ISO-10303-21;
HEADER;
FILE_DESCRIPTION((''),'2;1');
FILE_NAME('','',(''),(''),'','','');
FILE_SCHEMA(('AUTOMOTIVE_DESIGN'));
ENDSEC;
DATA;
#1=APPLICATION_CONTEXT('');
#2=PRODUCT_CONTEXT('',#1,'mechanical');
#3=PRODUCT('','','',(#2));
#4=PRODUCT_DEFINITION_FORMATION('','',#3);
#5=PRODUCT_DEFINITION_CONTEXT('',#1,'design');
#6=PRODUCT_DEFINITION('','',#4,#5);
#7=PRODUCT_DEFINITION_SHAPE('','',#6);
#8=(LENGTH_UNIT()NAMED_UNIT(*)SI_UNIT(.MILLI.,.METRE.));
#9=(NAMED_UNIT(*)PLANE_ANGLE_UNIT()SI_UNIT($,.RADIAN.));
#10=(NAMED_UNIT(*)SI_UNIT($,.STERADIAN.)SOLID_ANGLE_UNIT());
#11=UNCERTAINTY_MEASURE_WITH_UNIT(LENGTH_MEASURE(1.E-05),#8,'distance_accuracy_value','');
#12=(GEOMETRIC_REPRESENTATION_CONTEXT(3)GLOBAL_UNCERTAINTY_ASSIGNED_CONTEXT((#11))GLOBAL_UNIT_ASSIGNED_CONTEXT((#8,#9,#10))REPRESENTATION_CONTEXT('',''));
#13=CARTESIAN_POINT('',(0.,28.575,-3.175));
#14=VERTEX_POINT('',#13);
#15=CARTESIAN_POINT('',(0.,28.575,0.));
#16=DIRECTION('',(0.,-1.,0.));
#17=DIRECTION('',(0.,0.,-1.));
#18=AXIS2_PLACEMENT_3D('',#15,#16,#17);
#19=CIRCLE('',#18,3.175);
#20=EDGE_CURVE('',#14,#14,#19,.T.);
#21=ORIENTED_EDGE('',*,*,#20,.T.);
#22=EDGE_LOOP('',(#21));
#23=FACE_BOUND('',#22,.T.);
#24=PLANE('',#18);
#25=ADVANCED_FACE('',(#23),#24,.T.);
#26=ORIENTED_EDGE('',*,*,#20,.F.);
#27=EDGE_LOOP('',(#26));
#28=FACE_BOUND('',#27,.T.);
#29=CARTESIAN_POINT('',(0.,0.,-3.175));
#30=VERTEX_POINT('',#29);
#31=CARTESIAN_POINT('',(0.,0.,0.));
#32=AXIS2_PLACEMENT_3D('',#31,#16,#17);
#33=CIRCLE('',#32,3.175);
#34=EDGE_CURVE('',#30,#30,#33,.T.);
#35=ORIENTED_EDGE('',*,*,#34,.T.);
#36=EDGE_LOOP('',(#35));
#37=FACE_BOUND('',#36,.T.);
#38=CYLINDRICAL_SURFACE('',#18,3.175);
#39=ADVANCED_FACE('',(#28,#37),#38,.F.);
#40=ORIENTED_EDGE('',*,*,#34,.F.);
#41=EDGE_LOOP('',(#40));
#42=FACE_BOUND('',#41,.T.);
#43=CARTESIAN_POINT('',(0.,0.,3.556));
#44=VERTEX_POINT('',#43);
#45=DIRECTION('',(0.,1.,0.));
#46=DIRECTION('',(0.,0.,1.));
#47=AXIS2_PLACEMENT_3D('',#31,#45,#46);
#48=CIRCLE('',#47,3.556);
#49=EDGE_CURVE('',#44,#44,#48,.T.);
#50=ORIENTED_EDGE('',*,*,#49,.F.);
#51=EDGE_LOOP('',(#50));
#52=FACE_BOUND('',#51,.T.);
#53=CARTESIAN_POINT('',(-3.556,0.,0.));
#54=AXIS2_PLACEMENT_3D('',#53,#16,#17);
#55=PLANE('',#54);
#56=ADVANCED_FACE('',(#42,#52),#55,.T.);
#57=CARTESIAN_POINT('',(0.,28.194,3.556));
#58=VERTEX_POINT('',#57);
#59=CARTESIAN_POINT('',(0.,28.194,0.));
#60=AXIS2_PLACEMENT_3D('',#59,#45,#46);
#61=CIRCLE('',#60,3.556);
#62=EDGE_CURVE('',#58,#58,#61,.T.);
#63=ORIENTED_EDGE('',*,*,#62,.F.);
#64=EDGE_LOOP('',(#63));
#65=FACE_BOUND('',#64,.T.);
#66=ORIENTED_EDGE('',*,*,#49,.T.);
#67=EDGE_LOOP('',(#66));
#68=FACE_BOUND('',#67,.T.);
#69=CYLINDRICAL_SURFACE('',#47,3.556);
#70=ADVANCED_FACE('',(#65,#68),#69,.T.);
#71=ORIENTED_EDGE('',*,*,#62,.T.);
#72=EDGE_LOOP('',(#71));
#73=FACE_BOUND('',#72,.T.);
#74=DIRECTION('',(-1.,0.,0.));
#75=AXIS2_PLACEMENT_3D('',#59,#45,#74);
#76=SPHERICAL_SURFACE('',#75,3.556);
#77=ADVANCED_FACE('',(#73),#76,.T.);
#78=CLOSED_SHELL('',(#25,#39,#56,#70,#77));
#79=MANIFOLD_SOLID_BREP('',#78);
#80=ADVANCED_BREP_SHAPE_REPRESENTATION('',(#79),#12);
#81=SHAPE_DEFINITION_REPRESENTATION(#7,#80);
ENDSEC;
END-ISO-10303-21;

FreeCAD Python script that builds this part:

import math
import FreeCAD as App
import Part
import Sketcher
from FreeCAD import Vector
Q = App.Units.Quantity

doc = App.newDocument("Part")
body = doc.addObject("PartDesign::Body", "Body")

sketch1 = body.newObject("Sketcher::SketchObject", "Sketch")
sketch1.AttachmentSupport = (doc.getObject("XY_Plane"), [""])
sketch1.MapMode = "FlatFace"
sketch1.addGeometry([
    Part.LineSegment(Vector(-3.556, 28.194, 0), Vector(-3.556, 0, 0)),
    Part.LineSegment(Vector(-3.556, 0, 0), Vector(0, 0, 0)),
    Part.LineSegment(Vector(0, 0, 0), Vector(0, 31.75, 0)),
    Part.ArcOfCircle(Part.Circle(Vector(0, 28.194, 0), Vector(0, 0, 1), 3.556), math.radians(90), math.radians(180)),
], False)
sketch1.addConstraint([
    Sketcher.Constraint("Coincident", 0, 2, 1, 1),
    Sketcher.Constraint("Coincident", 1, 2, 2, 1),
    Sketcher.Constraint("Coincident", 2, 2, 3, 1),
    Sketcher.Constraint("Tangent", 3, 2, 0, 1),
    Sketcher.Constraint("Vertical", 0),
    Sketcher.Constraint("Horizontal", 1),
    Sketcher.Constraint("Vertical", 2),
    Sketcher.Constraint("Coincident", 1, 2, -1, 1),
    Sketcher.Constraint("PointOnObject", 3, 3, -2),
    Sketcher.Constraint("Radius", 3, Q("0.14 in")),
    Sketcher.Constraint("DistanceY", 0, 2, 0, 1, Q("1.11 in")),
])
revolution = body.newObject("PartDesign::Revolution", "Revolution")
revolution.Profile = sketch1
revolution.ReferenceAxis = (sketch1, ["V_Axis"])
revolution.Angle = 360

sketch2 = body.newObject("Sketcher::SketchObject", "Sketch001")
sketch2.AttachmentSupport = (doc.getObject("XZ_Plane"), [""])
sketch2.MapMode = "FlatFace"
sketch2.addGeometry(Part.Circle(Vector(0, 0, 0), Vector(0, 0, 1), 3.175), False)
sketch2.addConstraint([
    Sketcher.Constraint("Coincident", 0, 3, -1, 1),
    Sketcher.Constraint("Diameter", 0, Q("0.25 in")),
])
pocket1 = body.newObject("PartDesign::Pocket", "Pocket")
pocket1.Profile = sketch2
pocket1.Length = Q("1.125 in")

doc.recompute()
